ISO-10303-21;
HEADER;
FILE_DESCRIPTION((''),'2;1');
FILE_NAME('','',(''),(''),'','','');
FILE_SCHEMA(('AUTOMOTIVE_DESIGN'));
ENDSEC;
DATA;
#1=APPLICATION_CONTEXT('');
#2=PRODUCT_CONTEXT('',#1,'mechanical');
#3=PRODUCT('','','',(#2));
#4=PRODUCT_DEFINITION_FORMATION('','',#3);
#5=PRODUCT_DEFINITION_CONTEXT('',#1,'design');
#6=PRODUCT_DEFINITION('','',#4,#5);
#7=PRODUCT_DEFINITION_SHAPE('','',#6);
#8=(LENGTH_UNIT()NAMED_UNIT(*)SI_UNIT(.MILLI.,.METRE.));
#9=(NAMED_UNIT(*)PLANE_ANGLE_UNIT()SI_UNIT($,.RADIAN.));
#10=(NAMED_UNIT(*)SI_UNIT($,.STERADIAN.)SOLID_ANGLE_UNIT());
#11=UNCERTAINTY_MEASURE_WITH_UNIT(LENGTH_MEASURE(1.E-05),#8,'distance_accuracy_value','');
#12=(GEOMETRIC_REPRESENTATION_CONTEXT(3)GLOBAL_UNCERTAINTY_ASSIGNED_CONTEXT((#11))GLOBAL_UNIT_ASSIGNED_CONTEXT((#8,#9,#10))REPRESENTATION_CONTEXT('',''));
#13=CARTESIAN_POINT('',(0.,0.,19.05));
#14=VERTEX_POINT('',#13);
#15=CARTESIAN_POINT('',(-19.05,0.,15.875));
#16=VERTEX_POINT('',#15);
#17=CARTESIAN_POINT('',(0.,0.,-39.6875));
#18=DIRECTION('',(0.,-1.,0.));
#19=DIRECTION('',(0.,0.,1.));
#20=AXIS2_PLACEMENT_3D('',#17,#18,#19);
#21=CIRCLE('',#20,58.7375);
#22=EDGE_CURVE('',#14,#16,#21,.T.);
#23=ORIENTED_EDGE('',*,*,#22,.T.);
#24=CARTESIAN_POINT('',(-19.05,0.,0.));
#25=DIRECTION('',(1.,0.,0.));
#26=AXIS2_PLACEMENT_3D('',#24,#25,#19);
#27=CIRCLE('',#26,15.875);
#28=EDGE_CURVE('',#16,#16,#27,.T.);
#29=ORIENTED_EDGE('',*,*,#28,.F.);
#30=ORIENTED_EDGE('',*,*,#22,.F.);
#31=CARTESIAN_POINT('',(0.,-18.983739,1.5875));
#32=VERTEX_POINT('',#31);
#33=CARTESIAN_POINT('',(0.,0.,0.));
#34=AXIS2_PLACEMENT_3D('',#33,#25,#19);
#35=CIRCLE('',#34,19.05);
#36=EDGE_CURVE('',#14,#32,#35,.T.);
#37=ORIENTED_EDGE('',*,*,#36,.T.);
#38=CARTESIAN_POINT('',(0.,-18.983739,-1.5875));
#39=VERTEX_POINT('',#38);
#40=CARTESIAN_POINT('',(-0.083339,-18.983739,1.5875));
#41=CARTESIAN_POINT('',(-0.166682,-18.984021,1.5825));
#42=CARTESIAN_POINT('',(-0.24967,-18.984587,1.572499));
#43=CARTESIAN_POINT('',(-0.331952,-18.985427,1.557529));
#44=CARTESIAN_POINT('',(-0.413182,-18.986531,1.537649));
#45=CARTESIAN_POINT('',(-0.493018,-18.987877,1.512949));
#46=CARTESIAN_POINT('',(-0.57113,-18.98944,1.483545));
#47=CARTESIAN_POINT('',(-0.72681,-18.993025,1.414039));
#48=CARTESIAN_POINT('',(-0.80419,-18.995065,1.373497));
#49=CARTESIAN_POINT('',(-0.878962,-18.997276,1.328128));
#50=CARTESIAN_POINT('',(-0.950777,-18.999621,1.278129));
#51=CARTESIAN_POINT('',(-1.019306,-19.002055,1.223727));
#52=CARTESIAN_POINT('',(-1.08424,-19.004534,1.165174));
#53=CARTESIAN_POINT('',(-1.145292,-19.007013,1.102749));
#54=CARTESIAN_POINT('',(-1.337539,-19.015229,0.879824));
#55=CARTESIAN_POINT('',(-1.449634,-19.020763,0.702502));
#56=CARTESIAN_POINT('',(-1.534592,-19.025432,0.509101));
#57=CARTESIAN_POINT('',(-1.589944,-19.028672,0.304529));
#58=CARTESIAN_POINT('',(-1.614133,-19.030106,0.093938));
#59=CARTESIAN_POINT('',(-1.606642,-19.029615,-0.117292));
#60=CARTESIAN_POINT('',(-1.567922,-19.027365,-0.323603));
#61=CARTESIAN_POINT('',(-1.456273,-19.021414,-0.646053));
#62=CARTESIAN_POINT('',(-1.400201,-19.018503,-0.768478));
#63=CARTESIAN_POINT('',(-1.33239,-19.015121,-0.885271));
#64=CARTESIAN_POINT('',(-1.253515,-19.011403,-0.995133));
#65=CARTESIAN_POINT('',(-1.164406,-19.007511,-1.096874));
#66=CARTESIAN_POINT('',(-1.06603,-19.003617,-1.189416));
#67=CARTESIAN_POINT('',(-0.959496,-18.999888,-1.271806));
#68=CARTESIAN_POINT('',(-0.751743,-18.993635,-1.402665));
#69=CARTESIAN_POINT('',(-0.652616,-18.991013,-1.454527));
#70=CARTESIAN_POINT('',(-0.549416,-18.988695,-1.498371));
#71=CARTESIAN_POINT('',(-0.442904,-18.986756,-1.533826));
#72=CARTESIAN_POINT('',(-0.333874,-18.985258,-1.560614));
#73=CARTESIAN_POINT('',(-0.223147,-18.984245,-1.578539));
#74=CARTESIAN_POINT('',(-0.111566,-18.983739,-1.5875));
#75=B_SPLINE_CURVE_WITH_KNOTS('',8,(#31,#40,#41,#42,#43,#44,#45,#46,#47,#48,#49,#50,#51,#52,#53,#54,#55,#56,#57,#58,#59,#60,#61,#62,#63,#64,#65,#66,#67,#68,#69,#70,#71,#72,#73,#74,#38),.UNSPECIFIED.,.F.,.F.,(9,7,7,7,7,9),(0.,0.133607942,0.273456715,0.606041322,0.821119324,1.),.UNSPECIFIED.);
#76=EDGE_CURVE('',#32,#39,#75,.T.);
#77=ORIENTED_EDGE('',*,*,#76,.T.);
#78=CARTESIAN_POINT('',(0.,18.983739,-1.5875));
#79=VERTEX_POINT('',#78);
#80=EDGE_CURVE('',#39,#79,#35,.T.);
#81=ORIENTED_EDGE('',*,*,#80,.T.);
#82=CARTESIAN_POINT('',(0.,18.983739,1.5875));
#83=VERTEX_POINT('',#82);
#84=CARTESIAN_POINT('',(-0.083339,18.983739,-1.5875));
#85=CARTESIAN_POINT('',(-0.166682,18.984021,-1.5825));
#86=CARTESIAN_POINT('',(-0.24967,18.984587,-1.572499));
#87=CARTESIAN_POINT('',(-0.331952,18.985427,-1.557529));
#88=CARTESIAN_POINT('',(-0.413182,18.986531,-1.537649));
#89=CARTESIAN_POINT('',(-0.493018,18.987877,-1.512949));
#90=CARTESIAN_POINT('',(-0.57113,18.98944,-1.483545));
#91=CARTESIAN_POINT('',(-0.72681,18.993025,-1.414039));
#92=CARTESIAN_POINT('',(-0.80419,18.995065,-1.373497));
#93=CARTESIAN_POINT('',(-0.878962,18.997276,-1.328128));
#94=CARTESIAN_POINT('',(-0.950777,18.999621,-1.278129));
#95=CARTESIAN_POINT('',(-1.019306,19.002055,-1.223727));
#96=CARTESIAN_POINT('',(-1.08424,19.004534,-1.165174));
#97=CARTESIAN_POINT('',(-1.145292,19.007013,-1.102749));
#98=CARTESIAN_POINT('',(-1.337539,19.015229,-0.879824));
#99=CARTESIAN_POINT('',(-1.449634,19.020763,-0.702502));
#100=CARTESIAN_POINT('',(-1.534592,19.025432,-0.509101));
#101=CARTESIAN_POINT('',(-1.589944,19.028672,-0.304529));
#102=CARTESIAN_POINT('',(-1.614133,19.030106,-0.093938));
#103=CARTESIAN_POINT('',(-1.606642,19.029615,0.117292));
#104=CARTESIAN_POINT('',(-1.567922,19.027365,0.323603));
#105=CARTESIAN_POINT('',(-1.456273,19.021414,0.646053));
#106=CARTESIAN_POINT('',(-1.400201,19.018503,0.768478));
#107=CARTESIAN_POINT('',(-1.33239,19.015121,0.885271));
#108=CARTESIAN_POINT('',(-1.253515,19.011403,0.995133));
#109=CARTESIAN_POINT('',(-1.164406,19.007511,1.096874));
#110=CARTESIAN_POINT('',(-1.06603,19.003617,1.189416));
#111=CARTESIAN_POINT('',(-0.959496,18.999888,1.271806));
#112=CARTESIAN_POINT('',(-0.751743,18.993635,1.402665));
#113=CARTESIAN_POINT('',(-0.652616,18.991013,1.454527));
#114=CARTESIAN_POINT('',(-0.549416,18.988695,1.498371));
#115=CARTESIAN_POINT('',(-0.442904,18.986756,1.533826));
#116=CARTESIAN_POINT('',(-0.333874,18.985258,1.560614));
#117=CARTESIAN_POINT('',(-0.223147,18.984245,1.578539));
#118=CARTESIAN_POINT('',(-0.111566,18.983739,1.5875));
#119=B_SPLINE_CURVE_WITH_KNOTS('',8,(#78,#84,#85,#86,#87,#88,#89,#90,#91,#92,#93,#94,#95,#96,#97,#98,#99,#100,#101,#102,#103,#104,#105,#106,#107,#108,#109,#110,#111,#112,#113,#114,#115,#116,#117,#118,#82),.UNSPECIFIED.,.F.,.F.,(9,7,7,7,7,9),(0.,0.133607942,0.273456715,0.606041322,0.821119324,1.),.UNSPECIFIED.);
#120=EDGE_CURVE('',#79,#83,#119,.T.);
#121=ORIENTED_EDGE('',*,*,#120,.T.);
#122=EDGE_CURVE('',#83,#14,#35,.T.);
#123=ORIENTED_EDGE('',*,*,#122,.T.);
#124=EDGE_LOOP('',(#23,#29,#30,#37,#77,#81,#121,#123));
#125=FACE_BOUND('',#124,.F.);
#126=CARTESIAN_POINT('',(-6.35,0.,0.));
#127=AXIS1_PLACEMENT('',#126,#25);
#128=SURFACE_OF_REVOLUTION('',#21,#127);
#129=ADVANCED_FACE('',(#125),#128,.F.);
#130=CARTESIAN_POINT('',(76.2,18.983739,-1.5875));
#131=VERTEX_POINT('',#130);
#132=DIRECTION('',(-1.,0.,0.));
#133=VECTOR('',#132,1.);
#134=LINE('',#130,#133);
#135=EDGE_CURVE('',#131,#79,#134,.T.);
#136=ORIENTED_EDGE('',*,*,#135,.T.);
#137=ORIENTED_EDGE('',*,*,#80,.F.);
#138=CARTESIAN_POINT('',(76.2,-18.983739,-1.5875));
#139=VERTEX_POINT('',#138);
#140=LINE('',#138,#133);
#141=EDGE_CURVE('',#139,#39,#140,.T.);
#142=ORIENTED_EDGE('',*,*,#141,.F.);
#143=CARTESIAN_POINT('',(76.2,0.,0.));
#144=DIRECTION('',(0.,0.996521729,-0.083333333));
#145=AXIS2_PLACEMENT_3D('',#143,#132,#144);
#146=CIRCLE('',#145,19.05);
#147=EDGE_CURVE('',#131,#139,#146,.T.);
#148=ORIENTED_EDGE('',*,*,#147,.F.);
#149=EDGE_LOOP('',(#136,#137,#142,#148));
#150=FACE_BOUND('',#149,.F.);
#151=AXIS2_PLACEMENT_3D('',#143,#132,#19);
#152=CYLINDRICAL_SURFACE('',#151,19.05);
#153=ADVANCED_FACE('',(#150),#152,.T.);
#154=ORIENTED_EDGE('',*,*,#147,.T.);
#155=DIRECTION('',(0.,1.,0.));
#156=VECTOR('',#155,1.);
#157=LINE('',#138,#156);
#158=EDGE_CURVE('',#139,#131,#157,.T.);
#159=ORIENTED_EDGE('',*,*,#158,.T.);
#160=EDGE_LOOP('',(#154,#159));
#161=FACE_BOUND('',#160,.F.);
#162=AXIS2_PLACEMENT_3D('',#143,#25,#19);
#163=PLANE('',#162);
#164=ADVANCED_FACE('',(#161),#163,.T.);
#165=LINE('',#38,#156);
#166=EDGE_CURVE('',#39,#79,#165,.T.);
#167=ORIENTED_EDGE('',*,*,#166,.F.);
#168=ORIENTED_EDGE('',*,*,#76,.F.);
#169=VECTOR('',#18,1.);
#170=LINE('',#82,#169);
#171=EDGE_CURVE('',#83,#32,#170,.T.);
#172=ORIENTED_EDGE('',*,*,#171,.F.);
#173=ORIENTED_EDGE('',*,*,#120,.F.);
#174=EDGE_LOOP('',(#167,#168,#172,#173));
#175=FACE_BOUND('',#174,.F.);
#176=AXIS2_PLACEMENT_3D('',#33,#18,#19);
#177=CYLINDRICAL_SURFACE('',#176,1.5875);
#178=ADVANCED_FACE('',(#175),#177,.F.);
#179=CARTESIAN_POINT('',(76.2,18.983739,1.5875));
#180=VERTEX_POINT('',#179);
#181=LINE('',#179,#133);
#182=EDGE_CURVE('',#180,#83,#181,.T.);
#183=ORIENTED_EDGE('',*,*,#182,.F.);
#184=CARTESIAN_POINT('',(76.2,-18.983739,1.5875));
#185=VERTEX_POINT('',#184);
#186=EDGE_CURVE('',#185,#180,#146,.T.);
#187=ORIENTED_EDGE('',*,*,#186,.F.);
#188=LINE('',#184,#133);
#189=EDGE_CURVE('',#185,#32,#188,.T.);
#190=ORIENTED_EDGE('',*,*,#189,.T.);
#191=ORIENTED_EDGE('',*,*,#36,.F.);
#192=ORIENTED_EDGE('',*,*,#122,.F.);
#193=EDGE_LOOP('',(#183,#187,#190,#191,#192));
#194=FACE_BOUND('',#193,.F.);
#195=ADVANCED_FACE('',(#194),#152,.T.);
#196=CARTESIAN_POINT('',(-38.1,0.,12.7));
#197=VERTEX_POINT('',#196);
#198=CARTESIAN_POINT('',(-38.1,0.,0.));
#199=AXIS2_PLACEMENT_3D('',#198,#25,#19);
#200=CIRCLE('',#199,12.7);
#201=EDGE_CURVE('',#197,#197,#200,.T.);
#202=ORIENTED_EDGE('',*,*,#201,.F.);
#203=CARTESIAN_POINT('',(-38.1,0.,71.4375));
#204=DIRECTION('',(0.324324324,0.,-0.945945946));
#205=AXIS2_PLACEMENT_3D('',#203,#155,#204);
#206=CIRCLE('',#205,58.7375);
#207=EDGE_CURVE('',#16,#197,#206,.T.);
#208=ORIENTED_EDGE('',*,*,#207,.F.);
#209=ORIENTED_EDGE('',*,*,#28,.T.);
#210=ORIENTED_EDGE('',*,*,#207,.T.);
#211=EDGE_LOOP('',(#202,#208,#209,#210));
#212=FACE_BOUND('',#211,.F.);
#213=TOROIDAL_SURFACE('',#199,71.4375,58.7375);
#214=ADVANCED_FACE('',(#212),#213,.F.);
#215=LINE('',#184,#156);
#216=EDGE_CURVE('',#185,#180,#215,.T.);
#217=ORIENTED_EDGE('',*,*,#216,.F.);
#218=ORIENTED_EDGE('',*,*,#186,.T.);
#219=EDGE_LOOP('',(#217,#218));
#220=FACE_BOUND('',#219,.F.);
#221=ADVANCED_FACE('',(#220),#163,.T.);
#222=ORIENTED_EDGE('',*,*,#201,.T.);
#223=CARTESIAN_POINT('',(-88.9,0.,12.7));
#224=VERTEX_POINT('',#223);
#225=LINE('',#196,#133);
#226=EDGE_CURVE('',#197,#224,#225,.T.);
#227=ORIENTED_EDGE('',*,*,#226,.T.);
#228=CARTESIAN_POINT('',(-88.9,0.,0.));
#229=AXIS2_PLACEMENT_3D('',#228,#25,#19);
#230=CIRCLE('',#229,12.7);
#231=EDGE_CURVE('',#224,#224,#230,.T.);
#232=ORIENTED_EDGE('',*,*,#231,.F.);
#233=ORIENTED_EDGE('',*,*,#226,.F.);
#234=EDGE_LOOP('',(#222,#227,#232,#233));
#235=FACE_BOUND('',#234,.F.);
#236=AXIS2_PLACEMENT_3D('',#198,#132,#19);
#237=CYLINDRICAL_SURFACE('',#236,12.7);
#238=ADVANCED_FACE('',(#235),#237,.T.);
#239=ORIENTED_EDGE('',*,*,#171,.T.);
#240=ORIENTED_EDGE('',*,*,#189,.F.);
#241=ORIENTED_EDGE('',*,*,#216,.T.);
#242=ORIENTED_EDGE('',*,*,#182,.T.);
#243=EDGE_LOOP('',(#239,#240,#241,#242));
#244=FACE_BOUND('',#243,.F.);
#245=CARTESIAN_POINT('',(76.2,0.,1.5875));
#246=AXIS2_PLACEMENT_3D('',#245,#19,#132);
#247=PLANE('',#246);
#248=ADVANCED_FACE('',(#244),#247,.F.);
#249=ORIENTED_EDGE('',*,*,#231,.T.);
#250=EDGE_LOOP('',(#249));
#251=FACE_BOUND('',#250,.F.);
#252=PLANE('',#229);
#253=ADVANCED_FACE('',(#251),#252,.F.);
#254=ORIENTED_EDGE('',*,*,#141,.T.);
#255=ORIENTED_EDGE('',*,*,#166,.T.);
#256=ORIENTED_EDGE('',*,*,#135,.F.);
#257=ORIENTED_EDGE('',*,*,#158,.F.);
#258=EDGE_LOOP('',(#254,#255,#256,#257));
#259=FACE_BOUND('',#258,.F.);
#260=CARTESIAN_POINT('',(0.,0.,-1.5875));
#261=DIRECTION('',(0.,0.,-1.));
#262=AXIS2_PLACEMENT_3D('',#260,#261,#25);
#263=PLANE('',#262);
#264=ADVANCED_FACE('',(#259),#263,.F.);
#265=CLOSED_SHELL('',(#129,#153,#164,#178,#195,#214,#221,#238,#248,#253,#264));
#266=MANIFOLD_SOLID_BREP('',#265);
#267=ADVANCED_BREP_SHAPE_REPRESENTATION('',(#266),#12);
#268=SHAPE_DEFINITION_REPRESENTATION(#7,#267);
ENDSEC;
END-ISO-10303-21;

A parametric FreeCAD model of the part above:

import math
import FreeCAD as App
import Part
import Sketcher
from FreeCAD import Vector
Q = App.Units.Quantity

doc = App.newDocument("Part")
params = doc.addObject("Spreadsheet::Sheet", "Params")
for row, (alias, value) in enumerate([
    ("sketch1_width", "2 in"),
    ("sketch1_width2", "3 in"),
    ("sketch1_width3", "6.5 in"),
    ("sketch1_height", "0.5 in"),
    ("sketch1_radius", "2.3125 in"),
    ("revolution_angle", "360 deg"),
    ("sketch2_width", "3 in"),
    ("sketch2_radius", "0.0625 in"),
], start=1):
    params.set(f"A{row}", alias)
    params.set(f"B{row}", "=" + value)
    params.setAlias(f"B{row}", alias)

body = doc.addObject("PartDesign::Body", "Body")

# Sketch on XZ plane
sketch1 = body.newObject("Sketcher::SketchObject", "Sketch")
sketch1.AttachmentSupport = (doc.getObject("XZ_Plane"), [""])
sketch1.MapMode = "FlatFace"
sketch1.addGeometry([
    Part.LineSegment(Vector(-38, 13, 0), Vector(-89, 13, 0)),  # 0
    Part.LineSegment(Vector(-89, 13, 0), Vector(-89, 0, 0)),  # 1
    Part.LineSegment(Vector(-89, 0, 0), Vector(76, 0, 0)),  # 2
    Part.LineSegment(Vector(76, 0, 0), Vector(76, 19, 0)),  # 3
    Part.LineSegment(Vector(76, 19, 0), Vector(0, 19, 0)),  # 4
    Part.ArcOfCircle(Part.Circle(Vector(0, -40, 0), Vector(0, 0, 1), 59), math.radians(90), math.radians(108.92)),  # 5
    Part.ArcOfCircle(Part.Circle(Vector(-38, 71, 0), Vector(0, 0, 1), 59), math.radians(-90), math.radians(-71.08)),  # 6
], False)
sketch1.addConstraint([
    Sketcher.Constraint("Coincident", 0, 2, 1, 1),
    Sketcher.Constraint("Coincident", 1, 2, 2, 1),
    Sketcher.Constraint("Coincident", 2, 2, 3, 1),
    Sketcher.Constraint("Coincident", 3, 2, 4, 1),
    Sketcher.Constraint("Tangent", 4, 2, 5, 1),
    Sketcher.Constraint("Tangent", 5, 2, 6, 2),
    Sketcher.Constraint("Tangent", 6, 1, 0, 1),
    Sketcher.Constraint("Horizontal", 0),
    Sketcher.Constraint("Vertical", 1),
    Sketcher.Constraint("Horizontal", 2),
    Sketcher.Constraint("Vertical", 3),
    Sketcher.Constraint("Horizontal", 4),
    Sketcher.Constraint("Equal", 5, 6),
    Sketcher.Constraint("PointOnObject", 5, 3, -2),
    Sketcher.Constraint("PointOnObject", 1, 2, -1),
    Sketcher.Constraint("DistanceX", 0, 2, 0, 1, Q("2 in")),
    Sketcher.Constraint("DistanceX", 4, 2, 4, 1, Q("3 in")),
    Sketcher.Constraint("DistanceX", 2, 1, 2, 2, Q("6.5 in")),
    Sketcher.Constraint("DistanceY", 1, 2, 1, 1, Q("0.5 in")),
    Sketcher.Constraint("Radius", 5, Q("2.3125 in")),
])
sketch1.setExpression("Constraints[15]", "Params.sketch1_width")
sketch1.setExpression("Constraints[16]", "Params.sketch1_width2")
sketch1.setExpression("Constraints[17]", "Params.sketch1_width3")
sketch1.setExpression("Constraints[18]", "Params.sketch1_height")
sketch1.setExpression("Constraints[19]", "Params.sketch1_radius")
revolution = body.newObject("PartDesign::Revolution", "Revolution")
revolution.Profile = sketch1
revolution.ReferenceAxis = (sketch1, ["H_Axis"])
revolution.setExpression("Angle", "Params.revolution_angle")

# Sketch on XZ plane
sketch2 = body.newObject("Sketcher::SketchObject", "Sketch001")
sketch2.AttachmentSupport = (doc.getObject("XZ_Plane"), [""])
sketch2.MapMode = "FlatFace"
sketch2.addGeometry([
    Part.LineSegment(Vector(76.2, -1.6, 0), Vector(76.2, 1.6, 0)),
    Part.LineSegment(Vector(76.2, 1.6, 0), Vector(0, 1.6, 0)),
    Part.ArcOfCircle(Part.Circle(Vector(0, 0, 0), Vector(0, 0, 1), 1.6), math.radians(90), math.radians(270)),
    Part.LineSegment(Vector(0, -1.6, 0), Vector(76.2, -1.6, 0)),
], False)
sketch2.addConstraint([
    Sketcher.Constraint("Coincident", 0, 2, 1, 1),
    Sketcher.Constraint("Tangent", 1, 2, 2, 1),
    Sketcher.Constraint("Tangent", 2, 2, 3, 1),
    Sketcher.Constraint("Coincident", 3, 2, 0, 1),
    Sketcher.Constraint("Vertical", 0),
    Sketcher.Constraint("Horizontal", 1),
    Sketcher.Constraint("Horizontal", 3),
    Sketcher.Constraint("Coincident", 2, 3, -1, 1),
    Sketcher.Constraint("DistanceX", 1, 2, 1, 1, Q("3 in")),
    Sketcher.Constraint("Radius", 2, Q("0.0625 in")),
])
sketch2.setExpression("Constraints[8]", "Params.sketch2_width")
sketch2.setExpression("Constraints[9]", "Params.sketch2_radius")
pocket1 = body.newObject("PartDesign::Pocket", "Pocket")
pocket1.Profile = sketch2
pocket1.Type = "ThroughAll"
pocket1.Midplane = True

doc.recompute()
